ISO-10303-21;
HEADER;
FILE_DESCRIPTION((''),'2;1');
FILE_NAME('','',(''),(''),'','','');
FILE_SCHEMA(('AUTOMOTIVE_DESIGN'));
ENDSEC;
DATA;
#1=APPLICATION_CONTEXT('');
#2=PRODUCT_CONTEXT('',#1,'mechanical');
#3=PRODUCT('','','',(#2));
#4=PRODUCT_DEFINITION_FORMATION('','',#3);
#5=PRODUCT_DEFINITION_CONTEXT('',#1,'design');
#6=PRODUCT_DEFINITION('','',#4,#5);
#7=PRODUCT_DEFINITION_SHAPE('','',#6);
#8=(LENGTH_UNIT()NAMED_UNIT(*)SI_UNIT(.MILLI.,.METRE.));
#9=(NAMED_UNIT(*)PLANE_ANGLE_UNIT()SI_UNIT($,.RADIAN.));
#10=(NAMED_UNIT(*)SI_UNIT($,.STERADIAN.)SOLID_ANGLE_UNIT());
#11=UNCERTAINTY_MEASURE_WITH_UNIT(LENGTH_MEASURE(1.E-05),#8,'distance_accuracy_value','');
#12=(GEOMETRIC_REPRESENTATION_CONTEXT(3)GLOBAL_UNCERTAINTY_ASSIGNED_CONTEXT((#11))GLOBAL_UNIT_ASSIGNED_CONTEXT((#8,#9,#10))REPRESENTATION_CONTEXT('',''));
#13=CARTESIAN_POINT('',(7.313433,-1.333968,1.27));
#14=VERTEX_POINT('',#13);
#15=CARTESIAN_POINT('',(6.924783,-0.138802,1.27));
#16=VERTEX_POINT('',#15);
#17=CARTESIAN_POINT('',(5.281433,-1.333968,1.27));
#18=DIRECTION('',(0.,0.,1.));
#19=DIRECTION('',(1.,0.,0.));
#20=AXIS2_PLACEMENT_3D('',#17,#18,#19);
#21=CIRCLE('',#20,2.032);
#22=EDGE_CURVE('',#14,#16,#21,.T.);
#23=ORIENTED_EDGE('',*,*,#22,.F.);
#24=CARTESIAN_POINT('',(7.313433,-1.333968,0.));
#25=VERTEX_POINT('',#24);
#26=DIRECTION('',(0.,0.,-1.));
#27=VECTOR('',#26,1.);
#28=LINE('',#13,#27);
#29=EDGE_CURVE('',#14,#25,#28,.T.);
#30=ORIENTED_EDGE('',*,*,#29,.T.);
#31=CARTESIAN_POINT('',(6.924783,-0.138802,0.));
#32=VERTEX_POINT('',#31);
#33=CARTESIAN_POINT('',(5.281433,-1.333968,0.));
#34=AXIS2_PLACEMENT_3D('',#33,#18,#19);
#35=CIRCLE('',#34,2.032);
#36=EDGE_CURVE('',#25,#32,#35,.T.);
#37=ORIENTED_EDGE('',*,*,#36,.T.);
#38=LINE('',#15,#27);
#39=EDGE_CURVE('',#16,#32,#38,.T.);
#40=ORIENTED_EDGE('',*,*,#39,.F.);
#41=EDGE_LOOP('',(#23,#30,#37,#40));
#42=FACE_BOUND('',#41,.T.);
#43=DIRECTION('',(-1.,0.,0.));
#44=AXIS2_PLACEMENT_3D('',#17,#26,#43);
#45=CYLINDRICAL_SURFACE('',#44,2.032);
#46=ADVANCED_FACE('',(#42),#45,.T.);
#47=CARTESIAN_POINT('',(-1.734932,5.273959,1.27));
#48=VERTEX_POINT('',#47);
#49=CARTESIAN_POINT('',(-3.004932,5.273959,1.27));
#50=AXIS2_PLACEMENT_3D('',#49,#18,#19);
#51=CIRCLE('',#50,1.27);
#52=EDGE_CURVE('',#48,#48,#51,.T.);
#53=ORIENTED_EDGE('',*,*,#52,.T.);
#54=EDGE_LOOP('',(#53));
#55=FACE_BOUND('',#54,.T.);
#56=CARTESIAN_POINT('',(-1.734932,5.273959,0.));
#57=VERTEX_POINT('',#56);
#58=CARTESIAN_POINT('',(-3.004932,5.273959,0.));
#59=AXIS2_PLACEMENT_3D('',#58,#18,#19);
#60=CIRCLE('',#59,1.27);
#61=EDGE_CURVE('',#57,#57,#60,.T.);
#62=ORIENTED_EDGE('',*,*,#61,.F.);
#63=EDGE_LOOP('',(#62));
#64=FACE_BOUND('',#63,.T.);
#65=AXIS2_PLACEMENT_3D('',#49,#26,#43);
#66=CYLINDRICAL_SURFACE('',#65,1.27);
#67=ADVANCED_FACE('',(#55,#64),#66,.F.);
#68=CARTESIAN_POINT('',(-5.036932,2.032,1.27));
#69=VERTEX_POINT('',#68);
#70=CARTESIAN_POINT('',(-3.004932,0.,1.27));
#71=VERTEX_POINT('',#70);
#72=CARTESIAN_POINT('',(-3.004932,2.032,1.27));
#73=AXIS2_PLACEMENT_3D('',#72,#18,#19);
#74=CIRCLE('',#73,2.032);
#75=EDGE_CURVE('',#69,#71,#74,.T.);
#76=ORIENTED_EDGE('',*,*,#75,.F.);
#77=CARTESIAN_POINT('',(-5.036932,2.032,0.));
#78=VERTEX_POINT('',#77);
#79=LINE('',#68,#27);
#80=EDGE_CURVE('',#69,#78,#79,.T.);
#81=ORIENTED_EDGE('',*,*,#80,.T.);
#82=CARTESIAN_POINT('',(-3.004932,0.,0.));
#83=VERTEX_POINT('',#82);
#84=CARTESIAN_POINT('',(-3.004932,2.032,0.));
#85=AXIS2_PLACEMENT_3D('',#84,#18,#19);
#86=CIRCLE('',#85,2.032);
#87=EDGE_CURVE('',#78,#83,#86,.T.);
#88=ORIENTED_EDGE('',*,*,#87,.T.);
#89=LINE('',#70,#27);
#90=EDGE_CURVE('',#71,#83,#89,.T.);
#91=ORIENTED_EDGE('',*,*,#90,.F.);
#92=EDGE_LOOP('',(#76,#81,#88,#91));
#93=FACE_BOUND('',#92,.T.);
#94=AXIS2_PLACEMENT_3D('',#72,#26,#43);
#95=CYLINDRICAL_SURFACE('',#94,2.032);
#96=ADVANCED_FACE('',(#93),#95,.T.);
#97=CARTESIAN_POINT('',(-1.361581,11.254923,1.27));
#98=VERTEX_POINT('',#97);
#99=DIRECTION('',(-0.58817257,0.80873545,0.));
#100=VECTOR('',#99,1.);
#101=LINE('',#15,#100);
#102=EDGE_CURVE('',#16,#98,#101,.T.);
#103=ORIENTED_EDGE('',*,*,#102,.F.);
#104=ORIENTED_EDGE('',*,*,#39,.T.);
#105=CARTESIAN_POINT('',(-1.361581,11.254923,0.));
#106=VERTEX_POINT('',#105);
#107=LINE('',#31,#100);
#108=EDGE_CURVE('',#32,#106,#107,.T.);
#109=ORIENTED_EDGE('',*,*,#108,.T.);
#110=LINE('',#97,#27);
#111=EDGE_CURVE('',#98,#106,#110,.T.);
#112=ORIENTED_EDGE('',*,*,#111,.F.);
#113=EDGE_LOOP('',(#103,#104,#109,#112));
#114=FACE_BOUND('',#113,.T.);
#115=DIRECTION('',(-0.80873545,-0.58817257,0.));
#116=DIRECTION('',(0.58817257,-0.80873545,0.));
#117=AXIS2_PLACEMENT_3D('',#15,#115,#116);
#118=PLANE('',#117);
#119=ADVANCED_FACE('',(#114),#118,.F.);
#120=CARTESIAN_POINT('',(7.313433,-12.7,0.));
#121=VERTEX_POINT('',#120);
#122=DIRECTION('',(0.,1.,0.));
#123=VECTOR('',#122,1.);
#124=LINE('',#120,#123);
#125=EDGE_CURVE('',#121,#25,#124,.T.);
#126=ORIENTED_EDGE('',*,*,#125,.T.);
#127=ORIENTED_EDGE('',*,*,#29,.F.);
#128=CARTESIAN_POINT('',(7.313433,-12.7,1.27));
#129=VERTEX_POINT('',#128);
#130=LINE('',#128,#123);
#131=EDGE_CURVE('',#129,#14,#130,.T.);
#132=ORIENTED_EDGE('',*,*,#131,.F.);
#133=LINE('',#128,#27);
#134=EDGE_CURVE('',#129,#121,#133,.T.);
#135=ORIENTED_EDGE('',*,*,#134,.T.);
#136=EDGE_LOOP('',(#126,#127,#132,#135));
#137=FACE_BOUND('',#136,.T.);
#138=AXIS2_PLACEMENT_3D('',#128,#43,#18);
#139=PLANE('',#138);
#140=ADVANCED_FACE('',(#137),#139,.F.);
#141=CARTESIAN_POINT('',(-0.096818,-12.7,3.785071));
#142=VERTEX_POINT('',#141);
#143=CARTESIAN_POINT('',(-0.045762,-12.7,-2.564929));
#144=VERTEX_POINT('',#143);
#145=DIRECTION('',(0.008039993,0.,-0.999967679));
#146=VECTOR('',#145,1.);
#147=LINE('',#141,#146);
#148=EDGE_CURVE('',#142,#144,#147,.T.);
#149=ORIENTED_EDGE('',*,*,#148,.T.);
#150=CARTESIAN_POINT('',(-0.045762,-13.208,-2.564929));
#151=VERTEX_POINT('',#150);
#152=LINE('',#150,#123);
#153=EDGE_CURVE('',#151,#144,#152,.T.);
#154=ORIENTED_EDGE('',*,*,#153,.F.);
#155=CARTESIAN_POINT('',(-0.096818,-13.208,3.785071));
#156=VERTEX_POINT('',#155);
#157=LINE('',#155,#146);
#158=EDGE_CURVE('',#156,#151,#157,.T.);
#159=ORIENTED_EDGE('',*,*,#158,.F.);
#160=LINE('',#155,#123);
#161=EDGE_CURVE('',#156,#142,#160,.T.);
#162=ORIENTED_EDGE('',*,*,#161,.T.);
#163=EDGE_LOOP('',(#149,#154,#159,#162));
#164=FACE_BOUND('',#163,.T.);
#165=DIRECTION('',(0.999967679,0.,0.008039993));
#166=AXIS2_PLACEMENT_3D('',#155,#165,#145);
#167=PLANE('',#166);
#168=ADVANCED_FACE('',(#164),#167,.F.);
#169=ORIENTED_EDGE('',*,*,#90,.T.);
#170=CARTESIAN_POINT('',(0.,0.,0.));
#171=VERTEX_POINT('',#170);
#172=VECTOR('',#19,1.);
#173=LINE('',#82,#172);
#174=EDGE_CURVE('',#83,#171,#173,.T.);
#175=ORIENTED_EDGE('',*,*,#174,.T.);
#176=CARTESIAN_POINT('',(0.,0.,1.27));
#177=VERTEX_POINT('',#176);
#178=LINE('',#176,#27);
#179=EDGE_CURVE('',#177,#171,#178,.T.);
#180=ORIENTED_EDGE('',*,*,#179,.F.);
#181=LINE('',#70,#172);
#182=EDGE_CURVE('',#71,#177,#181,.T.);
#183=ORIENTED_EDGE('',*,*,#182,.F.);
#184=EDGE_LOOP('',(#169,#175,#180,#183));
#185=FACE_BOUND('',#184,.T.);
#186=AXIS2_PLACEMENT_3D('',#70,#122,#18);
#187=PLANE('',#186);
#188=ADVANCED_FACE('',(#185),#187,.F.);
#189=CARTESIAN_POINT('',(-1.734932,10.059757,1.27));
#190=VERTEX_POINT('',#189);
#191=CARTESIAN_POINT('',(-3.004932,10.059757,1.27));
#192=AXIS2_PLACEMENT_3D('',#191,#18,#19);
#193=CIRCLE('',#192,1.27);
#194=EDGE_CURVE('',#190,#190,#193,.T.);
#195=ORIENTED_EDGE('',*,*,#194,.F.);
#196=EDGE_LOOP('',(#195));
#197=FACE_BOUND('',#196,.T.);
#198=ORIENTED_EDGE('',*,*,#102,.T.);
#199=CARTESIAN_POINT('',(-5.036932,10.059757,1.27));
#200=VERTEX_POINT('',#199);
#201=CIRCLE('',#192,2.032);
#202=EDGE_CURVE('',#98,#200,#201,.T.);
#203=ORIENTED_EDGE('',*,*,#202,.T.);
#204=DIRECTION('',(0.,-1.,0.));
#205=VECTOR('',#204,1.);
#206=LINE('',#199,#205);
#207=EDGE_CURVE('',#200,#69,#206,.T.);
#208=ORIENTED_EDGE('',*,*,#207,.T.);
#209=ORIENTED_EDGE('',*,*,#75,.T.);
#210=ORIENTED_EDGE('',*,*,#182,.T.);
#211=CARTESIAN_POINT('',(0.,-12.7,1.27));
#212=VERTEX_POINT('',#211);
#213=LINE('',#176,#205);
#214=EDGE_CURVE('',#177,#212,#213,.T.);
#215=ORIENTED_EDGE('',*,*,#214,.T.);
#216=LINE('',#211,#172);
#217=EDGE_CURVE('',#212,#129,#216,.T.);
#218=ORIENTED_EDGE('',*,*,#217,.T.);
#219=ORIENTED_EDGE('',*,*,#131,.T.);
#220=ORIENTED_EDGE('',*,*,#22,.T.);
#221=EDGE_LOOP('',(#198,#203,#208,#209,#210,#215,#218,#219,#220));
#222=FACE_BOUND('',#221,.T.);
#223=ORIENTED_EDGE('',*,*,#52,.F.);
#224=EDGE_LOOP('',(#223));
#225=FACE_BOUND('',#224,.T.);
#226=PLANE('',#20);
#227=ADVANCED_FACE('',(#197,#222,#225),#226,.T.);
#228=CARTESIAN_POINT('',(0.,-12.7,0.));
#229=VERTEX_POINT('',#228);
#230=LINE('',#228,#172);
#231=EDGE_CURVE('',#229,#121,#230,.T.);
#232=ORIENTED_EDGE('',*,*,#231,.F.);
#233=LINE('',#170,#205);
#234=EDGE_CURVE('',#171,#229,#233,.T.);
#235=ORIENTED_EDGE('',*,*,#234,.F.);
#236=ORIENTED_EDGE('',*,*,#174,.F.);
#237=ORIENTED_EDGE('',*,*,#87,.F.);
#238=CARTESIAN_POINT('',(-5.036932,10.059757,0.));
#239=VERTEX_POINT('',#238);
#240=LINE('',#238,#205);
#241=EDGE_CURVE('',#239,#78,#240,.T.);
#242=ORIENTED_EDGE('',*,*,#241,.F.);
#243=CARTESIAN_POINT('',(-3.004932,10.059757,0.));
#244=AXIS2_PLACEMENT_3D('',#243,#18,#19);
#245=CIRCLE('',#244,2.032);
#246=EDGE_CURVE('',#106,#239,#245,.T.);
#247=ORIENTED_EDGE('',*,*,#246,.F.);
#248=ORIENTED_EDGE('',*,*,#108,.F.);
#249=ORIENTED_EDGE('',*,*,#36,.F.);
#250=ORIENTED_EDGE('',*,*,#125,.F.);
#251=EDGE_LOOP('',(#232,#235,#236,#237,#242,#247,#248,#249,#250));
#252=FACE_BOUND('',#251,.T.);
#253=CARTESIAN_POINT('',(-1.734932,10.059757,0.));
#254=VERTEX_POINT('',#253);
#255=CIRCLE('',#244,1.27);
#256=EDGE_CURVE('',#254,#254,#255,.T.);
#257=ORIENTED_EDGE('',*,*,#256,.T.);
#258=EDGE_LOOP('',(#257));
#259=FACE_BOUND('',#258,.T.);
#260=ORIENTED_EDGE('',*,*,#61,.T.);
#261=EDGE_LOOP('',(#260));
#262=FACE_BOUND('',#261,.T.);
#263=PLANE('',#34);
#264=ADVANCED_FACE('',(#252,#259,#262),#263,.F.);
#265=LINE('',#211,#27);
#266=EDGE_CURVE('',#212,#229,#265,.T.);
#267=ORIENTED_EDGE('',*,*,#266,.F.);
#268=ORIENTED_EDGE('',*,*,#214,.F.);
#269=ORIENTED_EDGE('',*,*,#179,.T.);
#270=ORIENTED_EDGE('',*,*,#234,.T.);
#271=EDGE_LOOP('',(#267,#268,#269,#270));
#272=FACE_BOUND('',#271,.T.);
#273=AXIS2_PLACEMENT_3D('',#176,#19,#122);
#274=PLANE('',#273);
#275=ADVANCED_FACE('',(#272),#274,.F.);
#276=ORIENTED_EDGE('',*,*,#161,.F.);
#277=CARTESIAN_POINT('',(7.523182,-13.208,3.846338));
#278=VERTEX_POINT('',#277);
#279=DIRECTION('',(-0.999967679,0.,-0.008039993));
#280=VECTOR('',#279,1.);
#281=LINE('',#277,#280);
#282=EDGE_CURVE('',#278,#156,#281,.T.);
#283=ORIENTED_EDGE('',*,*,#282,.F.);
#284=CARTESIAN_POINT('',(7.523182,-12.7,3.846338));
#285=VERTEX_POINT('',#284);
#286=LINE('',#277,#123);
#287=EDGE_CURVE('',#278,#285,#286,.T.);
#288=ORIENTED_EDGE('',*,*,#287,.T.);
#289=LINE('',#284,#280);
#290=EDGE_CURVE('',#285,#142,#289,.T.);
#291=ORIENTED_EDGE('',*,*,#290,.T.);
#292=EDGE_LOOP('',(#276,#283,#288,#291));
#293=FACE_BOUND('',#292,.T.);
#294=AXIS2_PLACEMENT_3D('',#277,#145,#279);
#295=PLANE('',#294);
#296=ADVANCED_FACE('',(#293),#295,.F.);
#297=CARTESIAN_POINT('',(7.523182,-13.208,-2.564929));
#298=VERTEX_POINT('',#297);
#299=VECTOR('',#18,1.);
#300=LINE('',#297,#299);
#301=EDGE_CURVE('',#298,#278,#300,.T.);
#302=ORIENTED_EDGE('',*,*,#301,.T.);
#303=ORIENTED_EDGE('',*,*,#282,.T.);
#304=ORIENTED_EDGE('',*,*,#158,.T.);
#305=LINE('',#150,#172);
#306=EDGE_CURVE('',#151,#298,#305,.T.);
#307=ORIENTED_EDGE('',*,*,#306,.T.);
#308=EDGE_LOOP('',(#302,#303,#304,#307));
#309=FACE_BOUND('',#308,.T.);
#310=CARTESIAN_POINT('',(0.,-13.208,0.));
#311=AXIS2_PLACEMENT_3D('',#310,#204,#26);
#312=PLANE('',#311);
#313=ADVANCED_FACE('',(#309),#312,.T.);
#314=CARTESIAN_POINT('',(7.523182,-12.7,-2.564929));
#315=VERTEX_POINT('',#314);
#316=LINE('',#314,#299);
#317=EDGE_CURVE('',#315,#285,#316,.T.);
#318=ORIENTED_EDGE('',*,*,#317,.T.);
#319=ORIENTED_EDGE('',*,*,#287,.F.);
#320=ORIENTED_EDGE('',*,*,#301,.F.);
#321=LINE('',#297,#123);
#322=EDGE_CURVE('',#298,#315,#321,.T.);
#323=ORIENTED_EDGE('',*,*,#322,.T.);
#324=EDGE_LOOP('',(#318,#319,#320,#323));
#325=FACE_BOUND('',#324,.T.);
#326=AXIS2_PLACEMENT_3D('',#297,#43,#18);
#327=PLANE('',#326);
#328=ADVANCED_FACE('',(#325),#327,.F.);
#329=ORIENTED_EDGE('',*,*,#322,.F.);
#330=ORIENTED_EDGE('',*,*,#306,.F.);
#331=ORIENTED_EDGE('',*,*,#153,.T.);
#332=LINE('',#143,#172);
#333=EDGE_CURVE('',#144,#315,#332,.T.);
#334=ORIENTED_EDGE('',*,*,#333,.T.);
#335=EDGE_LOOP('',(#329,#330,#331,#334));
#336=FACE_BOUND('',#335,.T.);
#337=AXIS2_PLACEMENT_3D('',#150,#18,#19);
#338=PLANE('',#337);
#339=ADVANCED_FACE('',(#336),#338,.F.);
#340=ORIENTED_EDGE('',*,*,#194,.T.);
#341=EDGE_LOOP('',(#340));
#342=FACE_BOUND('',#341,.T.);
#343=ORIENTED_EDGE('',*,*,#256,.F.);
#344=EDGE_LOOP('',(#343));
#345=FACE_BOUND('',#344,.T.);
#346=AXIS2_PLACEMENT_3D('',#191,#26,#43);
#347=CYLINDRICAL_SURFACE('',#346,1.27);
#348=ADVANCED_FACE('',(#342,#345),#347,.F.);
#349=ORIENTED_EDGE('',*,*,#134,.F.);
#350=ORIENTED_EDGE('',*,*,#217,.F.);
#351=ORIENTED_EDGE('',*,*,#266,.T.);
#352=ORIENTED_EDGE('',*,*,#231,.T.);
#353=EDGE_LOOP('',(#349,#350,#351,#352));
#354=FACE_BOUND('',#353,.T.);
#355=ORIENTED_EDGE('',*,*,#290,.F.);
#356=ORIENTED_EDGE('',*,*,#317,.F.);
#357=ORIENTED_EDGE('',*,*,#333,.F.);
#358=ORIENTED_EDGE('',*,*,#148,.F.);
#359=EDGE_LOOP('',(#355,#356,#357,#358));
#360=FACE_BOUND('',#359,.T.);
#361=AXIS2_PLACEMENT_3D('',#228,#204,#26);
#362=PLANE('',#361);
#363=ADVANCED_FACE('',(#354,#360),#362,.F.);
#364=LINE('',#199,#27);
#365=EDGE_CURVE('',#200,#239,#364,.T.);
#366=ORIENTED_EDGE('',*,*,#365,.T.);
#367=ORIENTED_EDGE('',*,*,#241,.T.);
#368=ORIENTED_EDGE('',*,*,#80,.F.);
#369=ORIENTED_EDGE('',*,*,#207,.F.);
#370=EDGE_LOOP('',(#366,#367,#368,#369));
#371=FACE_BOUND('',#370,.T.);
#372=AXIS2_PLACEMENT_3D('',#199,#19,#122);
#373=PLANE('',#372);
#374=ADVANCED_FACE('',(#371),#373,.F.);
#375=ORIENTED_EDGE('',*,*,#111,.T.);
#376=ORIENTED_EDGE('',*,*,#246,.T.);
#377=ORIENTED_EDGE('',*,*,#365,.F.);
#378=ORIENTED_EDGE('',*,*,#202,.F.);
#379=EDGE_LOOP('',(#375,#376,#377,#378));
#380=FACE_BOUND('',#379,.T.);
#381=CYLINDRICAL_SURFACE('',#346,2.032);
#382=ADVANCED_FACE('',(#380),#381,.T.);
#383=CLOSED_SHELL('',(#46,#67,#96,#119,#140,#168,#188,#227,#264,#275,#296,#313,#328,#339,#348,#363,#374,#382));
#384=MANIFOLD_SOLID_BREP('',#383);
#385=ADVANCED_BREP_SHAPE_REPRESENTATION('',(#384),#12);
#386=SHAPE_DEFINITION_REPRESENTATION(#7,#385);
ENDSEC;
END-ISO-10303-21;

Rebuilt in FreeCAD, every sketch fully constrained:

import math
import FreeCAD as App
import Part
import Sketcher
Q = App.Units.Quantity

doc = App.newDocument("Part")
body = doc.addObject("PartDesign::Body", "Body")

# Sketch on XY plane
sketch1 = body.newObject("Sketcher::SketchObject", "Sketch")
sketch1.AttachmentSupport = (doc.getObject("XY_Plane"), [""])
sketch1.MapMode = "FlatFace"
sketch1.addGeometry(Part.LineSegment(App.Vector(6.924783, -0.138802, 0), App.Vector(-1.361581, 11.254923, 0)), False)
sketch1.addGeometry(Part.ArcOfCircle(Part.Circle(App.Vector(-3.004932, 10.059757, 0), App.Vector(0, 0, 1), 2.032), math.radians(36.027435), math.radians(180)), False)
sketch1.addGeometry(Part.LineSegment(App.Vector(-5.036932, 10.059757, 0), App.Vector(-5.036932, 2.032, 0)), False)
sketch1.addGeometry(Part.ArcOfCircle(Part.Circle(App.Vector(-3.004932, 2.032, 0), App.Vector(0, 0, 1), 2.032), math.radians(-180), math.radians(-90)), False)
sketch1.addGeometry(Part.LineSegment(App.Vector(-3.004932, 0, 0), App.Vector(0, 0, 0)), False)
sketch1.addGeometry(Part.LineSegment(App.Vector(0, 0, 0), App.Vector(0, -12.7, 0)), False)
sketch1.addGeometry(Part.LineSegment(App.Vector(0, -12.7, 0), App.Vector(7.313433, -12.7, 0)), False)
sketch1.addGeometry(Part.LineSegment(App.Vector(7.313433, -12.7, 0), App.Vector(7.313433, -1.333968, 0)), False)
sketch1.addGeometry(Part.ArcOfCircle(Part.Circle(App.Vector(5.281433, -1.333968, 0), App.Vector(0, 0, 1), 2.032), math.radians(0), math.radians(36.027435)), False)
sketch1.addGeometry(Part.Circle(App.Vector(-3.004932, 5.273959, 0), App.Vector(0, 0, 1), 1.27), False)
sketch1.addGeometry(Part.Circle(App.Vector(-3.004932, 10.059757, 0), App.Vector(0, 0, 1), 1.27), False)
sketch1.addConstraint(Sketcher.Constraint("Tangent", 0, 2, 1, 1))
sketch1.addConstraint(Sketcher.Constraint("Tangent", 1, 2, 2, 1))
sketch1.addConstraint(Sketcher.Constraint("Tangent", 2, 2, 3, 1))
sketch1.addConstraint(Sketcher.Constraint("Tangent", 3, 2, 4, 1))
sketch1.addConstraint(Sketcher.Constraint("Coincident", 4, 2, 5, 1))
sketch1.addConstraint(Sketcher.Constraint("Coincident", 5, 2, 6, 1))
sketch1.addConstraint(Sketcher.Constraint("Coincident", 6, 2, 7, 1))
sketch1.addConstraint(Sketcher.Constraint("Tangent", 7, 2, 8, 1))
sketch1.addConstraint(Sketcher.Constraint("Tangent", 8, 2, 0, 1))
sketch1.addConstraint(Sketcher.Constraint("Vertical", 2))
sketch1.addConstraint(Sketcher.Constraint("Horizontal", 4))
sketch1.addConstraint(Sketcher.Constraint("Vertical", 5))
sketch1.addConstraint(Sketcher.Constraint("Horizontal", 6))
sketch1.addConstraint(Sketcher.Constraint("Vertical", 7))
sketch1.addConstraint(Sketcher.Constraint("Coincident", 4, 2, -1, 1))
sketch1.addConstraint(Sketcher.Constraint("Coincident", 10, 3, 1, 3))
sketch1.addConstraint(Sketcher.Constraint("Equal", 1, 3))
sketch1.addConstraint(Sketcher.Constraint("Equal", 3, 8))
sketch1.addConstraint(Sketcher.Constraint("Equal", 9, 10))
sketch1.addConstraint(Sketcher.Constraint("Vertical", 3, 3, 9, 3))
sketch1.addConstraint(Sketcher.Constraint("Diameter", 9, Q("0.1 in")))
sketch1.addConstraint(Sketcher.Constraint("Radius", 1, Q("0.08 in")))
sketch1.addConstraint(Sketcher.Constraint("DistanceY", 5, 2, 5, 1, Q("0.5 in")))
sketch1.addConstraint(Sketcher.Constraint("DistanceX", 4, 1, 4, 2, Q("3.004932 mm")))
sketch1.addConstraint(Sketcher.Constraint("DistanceY", 7, 1, 7, 2, Q("11.366032 mm")))
sketch1.addConstraint(Sketcher.Constraint("DistanceY", 8, 2, -1, 1, Q("0.138802 mm")))
sketch1.addConstraint(Sketcher.Constraint("Distance", 0, Q("14.088321 mm")))
sketch1.addConstraint(Sketcher.Constraint("DistanceY", -1, 1, 9, 3, Q("5.273959 mm")))
pad1 = body.newObject("PartDesign::Pad", "Pad")
pad1.Profile = sketch1
pad1.Length = Q("0.05 in")

# Sketch on XZ plane
sketch2 = body.newObject("Sketcher::SketchObject", "Sketch001")
sketch2.AttachmentSupport = (doc.getObject("XZ_Plane"), [""])
sketch2.MapMode = "FlatFace"
sketch2.AttachmentOffset = App.Placement(App.Vector(0, 0, 0.5 * 25.4), App.Rotation())
sketch2.addGeometry(Part.LineSegment(App.Vector(7.523182, -2.564929, 0), App.Vector(7.523182, 3.846338, 0)), False)
sketch2.addGeometry(Part.LineSegment(App.Vector(7.523182, 3.846338, 0), App.Vector(-0.096818, 3.785071, 0)), False)
sketch2.addGeometry(Part.LineSegment(App.Vector(-0.096818, 3.785071, 0), App.Vector(-0.045762, -2.564929, 0)), False)
sketch2.addGeometry(Part.LineSegment(App.Vector(-0.045762, -2.564929, 0), App.Vector(7.523182, -2.564929, 0)), False)
sketch2.addConstraint(Sketcher.Constraint("Coincident", 0, 2, 1, 1))
sketch2.addConstraint(Sketcher.Constraint("Coincident", 1, 2, 2, 1))
sketch2.addConstraint(Sketcher.Constraint("Coincident", 2, 2, 3, 1))
sketch2.addConstraint(Sketcher.Constraint("Coincident", 3, 2, 0, 1))
sketch2.addConstraint(Sketcher.Constraint("Vertical", 0))
sketch2.addConstraint(Sketcher.Constraint("Horizontal", 3))
sketch2.addConstraint(Sketcher.Constraint("Perpendicular", 1, 2))
sketch2.addConstraint(Sketcher.Constraint("DistanceX", 1, 2, 0, 2, Q("0.3 in")))
sketch2.addConstraint(Sketcher.Constraint("DistanceY", 2, 2, 1, 2, Q("0.25 in")))
sketch2.addConstraint(Sketcher.Constraint("DistanceX", 3, 1, 3, 2, Q("7.568944 mm")))
sketch2.addConstraint(Sketcher.Constraint("DistanceY", -1, 1, 1, 2, Q("3.785071 mm")))
sketch2.addConstraint(Sketcher.Constraint("DistanceX", -1, 1, 0, 2, Q("7.523182 mm")))
pad2 = body.newObject("PartDesign::Pad", "Pad001")
pad2.Profile = sketch2
pad2.Length = Q("0.02 in")

doc.recompute()
